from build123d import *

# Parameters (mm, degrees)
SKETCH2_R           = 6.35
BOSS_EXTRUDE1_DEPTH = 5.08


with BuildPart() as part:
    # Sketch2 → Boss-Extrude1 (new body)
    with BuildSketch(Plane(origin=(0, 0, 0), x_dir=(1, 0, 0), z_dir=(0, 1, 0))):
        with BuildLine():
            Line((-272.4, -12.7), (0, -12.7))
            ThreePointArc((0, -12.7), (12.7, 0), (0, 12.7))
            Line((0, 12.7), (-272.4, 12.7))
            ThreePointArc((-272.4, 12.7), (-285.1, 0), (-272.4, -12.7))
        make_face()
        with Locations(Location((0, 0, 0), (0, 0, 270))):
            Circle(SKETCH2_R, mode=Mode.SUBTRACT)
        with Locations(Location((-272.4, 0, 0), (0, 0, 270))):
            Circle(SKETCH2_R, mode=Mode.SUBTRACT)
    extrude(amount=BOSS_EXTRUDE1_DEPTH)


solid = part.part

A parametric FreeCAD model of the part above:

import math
import FreeCAD as App
import Part
import Sketcher

V = App.Vector
Q = App.Units.Quantity

doc = App.newDocument("Part")
body = doc.addObject("PartDesign::Body", "Body")

sketch1 = body.newObject("Sketcher::SketchObject", "Sketch")
sketch1.AttachmentSupport = (doc.getObject("XZ_Plane"), [""])
sketch1.MapMode = "FlatFace"
sketch1.addGeometry(Part.LineSegment(V(-272.4, 12.7, 0), V(0, 12.7, 0)), False)
sketch1.addGeometry(Part.ArcOfCircle(Part.Circle(V(0, 0, 0), V(0, 0, 1), 12.7), math.radians(-90), math.radians(90)), False)
sketch1.addGeometry(Part.LineSegment(V(0, -12.7, 0), V(-272.4, -12.7, 0)), False)
sketch1.addGeometry(Part.ArcOfCircle(Part.Circle(V(-272.4, 0, 0), V(0, 0, 1), 12.7), math.radians(90), math.radians(270)), False)
sketch1.addGeometry(Part.Circle(V(-272.4, 0, 0), V(0, 0, 1), 6.35), False)
sketch1.addGeometry(Part.Circle(V(0, 0, 0), V(0, 0, 1), 6.35), False)
sketch1.addConstraint(Sketcher.Constraint("Tangent", 0, 2, 1, 2))
sketch1.addConstraint(Sketcher.Constraint("Tangent", 1, 1, 2, 1))
sketch1.addConstraint(Sketcher.Constraint("Tangent", 2, 2, 3, 2))
sketch1.addConstraint(Sketcher.Constraint("Tangent", 3, 1, 0, 1))
sketch1.addConstraint(Sketcher.Constraint("Horizontal", 0))
sketch1.addConstraint(Sketcher.Constraint("Horizontal", 2))
sketch1.addConstraint(Sketcher.Constraint("Coincident", 1, 3, -1, 1))
sketch1.addConstraint(Sketcher.Constraint("Coincident", 5, 3, -1, 1))
sketch1.addConstraint(Sketcher.Constraint("Coincident", 4, 3, 3, 3))
sketch1.addConstraint(Sketcher.Constraint("Equal", 4, 5))
sketch1.addConstraint(Sketcher.Constraint("Diameter", 4, Q("0.5 in")))
sketch1.addConstraint(Sketcher.Constraint("Radius", 1, Q("0.5 in")))
sketch1.addConstraint(Sketcher.Constraint("DistanceX", 0, 1, 0, 2, Q("272.4 mm")))
pad1 = body.newObject("PartDesign::Pad", "Pad")
pad1.Profile = sketch1
pad1.Length = Q("0.2 in")
pad1.Reversed = True

doc.recompute()
